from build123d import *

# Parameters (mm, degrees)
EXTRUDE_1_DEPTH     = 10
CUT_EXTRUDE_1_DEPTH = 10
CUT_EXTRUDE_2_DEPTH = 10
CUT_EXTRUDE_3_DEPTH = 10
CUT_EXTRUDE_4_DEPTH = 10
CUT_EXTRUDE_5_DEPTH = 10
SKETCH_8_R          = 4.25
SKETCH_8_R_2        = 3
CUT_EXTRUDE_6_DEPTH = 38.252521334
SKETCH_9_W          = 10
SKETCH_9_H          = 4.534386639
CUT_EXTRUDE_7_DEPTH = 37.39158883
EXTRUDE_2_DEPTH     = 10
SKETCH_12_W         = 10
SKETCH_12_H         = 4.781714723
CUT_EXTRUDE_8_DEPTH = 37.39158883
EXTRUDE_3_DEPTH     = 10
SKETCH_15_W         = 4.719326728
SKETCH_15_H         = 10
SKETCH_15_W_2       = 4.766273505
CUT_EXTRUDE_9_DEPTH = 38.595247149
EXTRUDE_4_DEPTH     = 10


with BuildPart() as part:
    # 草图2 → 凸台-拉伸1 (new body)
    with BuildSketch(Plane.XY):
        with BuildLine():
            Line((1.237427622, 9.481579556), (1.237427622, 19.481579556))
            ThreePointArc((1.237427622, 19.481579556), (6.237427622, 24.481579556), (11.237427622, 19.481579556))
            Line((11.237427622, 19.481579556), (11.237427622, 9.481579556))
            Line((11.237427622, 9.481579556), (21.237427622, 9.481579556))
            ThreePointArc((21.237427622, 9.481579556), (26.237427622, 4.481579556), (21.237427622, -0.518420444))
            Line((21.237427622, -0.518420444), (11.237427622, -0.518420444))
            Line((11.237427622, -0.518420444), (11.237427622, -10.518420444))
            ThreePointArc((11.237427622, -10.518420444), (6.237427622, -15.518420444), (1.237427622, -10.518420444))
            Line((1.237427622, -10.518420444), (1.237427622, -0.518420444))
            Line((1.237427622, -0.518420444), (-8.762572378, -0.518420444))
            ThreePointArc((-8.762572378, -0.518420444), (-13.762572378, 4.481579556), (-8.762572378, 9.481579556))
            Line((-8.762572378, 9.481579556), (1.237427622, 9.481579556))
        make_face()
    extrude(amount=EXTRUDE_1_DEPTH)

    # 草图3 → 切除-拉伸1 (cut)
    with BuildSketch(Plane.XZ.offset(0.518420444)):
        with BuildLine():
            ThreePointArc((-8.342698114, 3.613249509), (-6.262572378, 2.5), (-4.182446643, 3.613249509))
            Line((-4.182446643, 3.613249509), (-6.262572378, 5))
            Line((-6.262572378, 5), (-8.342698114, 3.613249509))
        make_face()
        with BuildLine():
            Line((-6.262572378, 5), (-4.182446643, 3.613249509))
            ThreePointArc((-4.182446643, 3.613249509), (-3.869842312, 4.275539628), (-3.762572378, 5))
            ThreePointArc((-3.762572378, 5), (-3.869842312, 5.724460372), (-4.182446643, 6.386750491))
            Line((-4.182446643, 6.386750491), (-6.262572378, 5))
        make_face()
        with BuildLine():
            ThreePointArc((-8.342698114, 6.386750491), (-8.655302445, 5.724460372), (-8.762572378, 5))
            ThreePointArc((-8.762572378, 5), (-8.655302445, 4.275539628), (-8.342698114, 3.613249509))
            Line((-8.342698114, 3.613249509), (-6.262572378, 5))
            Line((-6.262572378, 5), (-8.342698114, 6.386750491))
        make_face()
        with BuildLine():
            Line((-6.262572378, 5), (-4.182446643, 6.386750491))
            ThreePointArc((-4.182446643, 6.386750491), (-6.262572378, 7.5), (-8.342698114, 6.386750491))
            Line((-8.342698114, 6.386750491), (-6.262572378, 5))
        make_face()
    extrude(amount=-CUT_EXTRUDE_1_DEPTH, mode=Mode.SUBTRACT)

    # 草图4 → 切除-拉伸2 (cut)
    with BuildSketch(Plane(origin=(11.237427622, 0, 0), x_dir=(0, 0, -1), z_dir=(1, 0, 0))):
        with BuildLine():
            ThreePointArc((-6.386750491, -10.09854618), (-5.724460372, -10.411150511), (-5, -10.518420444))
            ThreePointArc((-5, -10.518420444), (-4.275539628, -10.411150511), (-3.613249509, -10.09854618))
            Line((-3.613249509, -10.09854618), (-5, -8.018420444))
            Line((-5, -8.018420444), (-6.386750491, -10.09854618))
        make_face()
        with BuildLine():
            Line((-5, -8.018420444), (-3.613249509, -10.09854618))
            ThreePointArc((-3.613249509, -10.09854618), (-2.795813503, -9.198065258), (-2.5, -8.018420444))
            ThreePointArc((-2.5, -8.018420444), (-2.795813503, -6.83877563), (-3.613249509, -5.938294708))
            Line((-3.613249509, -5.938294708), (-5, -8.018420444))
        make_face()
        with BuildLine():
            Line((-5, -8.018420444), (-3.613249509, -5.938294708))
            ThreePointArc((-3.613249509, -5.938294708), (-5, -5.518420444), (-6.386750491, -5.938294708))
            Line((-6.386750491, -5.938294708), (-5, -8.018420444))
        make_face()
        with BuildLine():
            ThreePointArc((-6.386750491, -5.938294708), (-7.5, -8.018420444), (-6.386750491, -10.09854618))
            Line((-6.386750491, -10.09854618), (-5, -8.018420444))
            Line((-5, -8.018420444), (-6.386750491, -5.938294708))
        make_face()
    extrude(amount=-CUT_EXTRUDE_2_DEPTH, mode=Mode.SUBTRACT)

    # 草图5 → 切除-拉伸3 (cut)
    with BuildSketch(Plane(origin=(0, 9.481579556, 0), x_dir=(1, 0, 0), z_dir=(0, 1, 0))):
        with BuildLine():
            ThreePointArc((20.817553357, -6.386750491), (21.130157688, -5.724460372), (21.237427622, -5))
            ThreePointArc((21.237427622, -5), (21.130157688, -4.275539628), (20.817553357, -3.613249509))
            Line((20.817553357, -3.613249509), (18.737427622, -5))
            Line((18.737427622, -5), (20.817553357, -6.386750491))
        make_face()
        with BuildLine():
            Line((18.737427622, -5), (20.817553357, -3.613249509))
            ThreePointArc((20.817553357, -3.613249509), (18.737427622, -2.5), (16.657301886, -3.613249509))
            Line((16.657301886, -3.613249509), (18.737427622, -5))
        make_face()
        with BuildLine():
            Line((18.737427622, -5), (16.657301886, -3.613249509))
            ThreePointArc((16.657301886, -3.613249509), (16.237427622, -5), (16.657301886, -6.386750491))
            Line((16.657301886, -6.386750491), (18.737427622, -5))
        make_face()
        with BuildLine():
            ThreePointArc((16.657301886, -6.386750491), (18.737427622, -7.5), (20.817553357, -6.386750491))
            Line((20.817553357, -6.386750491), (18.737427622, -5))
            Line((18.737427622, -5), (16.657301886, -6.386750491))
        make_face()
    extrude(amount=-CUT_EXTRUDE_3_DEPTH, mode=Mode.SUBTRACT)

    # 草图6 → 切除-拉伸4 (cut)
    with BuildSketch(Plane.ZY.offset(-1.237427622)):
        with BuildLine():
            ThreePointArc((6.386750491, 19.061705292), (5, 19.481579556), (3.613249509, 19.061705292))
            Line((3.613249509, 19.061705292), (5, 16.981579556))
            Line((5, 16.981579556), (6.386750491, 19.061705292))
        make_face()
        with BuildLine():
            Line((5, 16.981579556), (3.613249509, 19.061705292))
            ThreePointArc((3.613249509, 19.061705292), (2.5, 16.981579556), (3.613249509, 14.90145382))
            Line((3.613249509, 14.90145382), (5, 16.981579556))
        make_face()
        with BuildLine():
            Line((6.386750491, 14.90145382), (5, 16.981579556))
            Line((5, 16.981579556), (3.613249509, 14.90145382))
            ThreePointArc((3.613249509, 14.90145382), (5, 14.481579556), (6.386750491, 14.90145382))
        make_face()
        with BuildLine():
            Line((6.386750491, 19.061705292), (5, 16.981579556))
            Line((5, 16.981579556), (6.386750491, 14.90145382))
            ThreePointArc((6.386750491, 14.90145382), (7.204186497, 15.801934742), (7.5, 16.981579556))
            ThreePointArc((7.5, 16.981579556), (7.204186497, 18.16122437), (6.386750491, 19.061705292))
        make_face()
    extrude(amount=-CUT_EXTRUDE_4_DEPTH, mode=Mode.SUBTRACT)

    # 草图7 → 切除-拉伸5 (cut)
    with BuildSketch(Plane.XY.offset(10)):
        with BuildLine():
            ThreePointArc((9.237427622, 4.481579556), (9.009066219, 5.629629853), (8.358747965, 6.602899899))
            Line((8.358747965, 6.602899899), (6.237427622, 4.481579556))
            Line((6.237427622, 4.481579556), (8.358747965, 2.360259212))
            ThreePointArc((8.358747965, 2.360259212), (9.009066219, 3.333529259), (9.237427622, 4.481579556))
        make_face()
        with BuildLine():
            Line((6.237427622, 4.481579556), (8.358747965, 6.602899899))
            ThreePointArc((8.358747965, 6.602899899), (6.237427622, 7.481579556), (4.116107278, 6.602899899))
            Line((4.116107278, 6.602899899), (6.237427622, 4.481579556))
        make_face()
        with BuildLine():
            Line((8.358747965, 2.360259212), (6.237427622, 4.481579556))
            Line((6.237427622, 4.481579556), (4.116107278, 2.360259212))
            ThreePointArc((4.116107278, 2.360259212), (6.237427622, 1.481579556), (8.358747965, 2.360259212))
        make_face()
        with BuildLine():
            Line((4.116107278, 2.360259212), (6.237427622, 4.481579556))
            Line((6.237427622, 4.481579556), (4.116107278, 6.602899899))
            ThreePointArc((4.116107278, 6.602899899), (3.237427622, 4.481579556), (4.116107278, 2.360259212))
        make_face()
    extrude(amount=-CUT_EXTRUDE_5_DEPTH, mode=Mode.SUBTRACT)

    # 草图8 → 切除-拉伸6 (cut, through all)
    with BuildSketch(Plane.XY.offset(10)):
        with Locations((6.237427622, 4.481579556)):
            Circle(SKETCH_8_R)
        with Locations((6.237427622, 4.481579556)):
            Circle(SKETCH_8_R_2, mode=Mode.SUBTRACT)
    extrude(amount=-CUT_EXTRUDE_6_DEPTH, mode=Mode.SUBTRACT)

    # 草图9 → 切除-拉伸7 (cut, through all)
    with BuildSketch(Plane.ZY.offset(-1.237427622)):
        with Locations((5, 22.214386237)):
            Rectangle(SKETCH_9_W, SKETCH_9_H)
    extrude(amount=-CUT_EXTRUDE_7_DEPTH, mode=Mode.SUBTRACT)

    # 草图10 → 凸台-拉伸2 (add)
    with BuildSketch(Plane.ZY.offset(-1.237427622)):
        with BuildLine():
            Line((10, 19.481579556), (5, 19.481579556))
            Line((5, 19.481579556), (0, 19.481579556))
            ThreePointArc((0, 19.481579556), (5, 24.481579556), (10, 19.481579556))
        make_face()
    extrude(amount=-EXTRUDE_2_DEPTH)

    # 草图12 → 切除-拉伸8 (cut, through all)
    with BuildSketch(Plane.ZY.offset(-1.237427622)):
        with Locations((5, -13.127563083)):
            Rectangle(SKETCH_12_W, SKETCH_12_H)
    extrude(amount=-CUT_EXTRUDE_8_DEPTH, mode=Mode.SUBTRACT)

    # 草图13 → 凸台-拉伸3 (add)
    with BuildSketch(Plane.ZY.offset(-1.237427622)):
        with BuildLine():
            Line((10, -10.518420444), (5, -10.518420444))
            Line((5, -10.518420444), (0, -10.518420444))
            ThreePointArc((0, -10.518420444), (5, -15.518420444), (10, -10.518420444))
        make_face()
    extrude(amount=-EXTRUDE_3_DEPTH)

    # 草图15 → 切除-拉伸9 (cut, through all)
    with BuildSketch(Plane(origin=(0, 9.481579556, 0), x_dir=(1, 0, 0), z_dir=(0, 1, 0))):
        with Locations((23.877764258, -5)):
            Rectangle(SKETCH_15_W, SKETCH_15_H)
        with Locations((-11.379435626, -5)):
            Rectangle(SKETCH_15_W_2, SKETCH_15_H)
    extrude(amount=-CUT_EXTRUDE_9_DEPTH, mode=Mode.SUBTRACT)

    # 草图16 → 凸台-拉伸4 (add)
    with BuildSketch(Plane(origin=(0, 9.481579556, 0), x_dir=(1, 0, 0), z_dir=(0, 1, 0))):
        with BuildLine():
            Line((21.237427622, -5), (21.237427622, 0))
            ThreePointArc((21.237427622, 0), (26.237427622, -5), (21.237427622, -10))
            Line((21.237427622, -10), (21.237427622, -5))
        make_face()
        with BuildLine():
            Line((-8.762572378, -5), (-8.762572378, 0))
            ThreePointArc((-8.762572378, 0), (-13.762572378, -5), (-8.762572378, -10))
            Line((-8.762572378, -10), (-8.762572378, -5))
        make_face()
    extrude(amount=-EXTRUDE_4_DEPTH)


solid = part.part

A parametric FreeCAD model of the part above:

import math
import FreeCAD as App
import Part
import Sketcher

V = App.Vector
Q = App.Units.Quantity


def add_polygon(sketch, points):
    """Adds a closed chain of lines whose ends are joined by coincident constraints."""
    first, n = sketch.GeometryCount, len(points)
    for a, b in zip(points, points[1:] + points[:1]):
        sketch.addGeometry(Part.LineSegment(App.Vector(*a, 0), App.Vector(*b, 0)), False)
    for i in range(n):
        sketch.addConstraint(Sketcher.Constraint("Coincident", first + i, 2, first + (i + 1) % n, 1))

doc = App.newDocument("Part")
body = doc.addObject("PartDesign::Body", "Body")

# Sketch on XY plane
sketch1 = body.newObject("Sketcher::SketchObject", "Sketch")
sketch1.AttachmentSupport = (doc.getObject("XY_Plane"), [""])
sketch1.MapMode = "FlatFace"
sketch1.addGeometry([
    Part.LineSegment(V(1, 19, 0), V(1, 9, 0)),  # 0
    Part.LineSegment(V(1, 9, 0), V(-9, 9, 0)),  # 1
    Part.ArcOfCircle(Part.Circle(V(-9, 4, 0), V(0, 0, 1), 5), math.radians(90), math.radians(270)),  # 2
    Part.LineSegment(V(-9, -1, 0), V(1, -1, 0)),  # 3
    Part.LineSegment(V(1, -1, 0), V(1, -11, 0)),  # 4
    Part.ArcOfCircle(Part.Circle(V(6, -11, 0), V(0, 0, 1), 5), math.radians(180), math.radians(360)),  # 5
    Part.LineSegment(V(11, -11, 0), V(11, -1, 0)),  # 6
    Part.LineSegment(V(11, -1, 0), V(21, -1, 0)),  # 7
    Part.ArcOfCircle(Part.Circle(V(21, 4, 0), V(0, 0, 1), 5), math.radians(-90), math.radians(90)),  # 8
    Part.LineSegment(V(21, 9, 0), V(11, 9, 0)),  # 9
    Part.LineSegment(V(11, 9, 0), V(11, 19, 0)),  # 10
    Part.ArcOfCircle(Part.Circle(V(6, 19, 0), V(0, 0, 1), 5), math.radians(0), math.radians(180)),  # 11
], False)
sketch1.addConstraint([
    Sketcher.Constraint("Coincident", 0, 2, 1, 1),
    Sketcher.Constraint("Tangent", 1, 2, 2, 1),
    Sketcher.Constraint("Tangent", 2, 2, 3, 1),
    Sketcher.Constraint("Coincident", 3, 2, 4, 1),
    Sketcher.Constraint("Tangent", 4, 2, 5, 1),
    Sketcher.Constraint("Tangent", 5, 2, 6, 1),
    Sketcher.Constraint("Coincident", 6, 2, 7, 1),
    Sketcher.Constraint("Tangent", 7, 2, 8, 1),
    Sketcher.Constraint("Tangent", 8, 2, 9, 1),
    Sketcher.Constraint("Coincident", 9, 2, 10, 1),
    Sketcher.Constraint("Tangent", 10, 2, 11, 1),
    Sketcher.Constraint("Tangent", 11, 2, 0, 1),
    Sketcher.Constraint("Vertical", 0),
    Sketcher.Constraint("Horizontal", 1),
    Sketcher.Constraint("Horizontal", 3),
    Sketcher.Constraint("Vertical", 4),
    Sketcher.Constraint("Vertical", 6),
    Sketcher.Constraint("Horizontal", 7),
    Sketcher.Constraint("Horizontal", 9),
    Sketcher.Constraint("Vertical", 10),
    Sketcher.Constraint("Equal", 2, 5),
    Sketcher.Constraint("Equal", 5, 8),
    Sketcher.Constraint("Equal", 8, 11),
    Sketcher.Constraint("Horizontal", 2, 3, 8, 3),
    Sketcher.Constraint("Vertical", 5, 3, 11, 3),
    Sketcher.Constraint("Equal", 3, 7),
    Sketcher.Constraint("Equal", 9, 0),
    Sketcher.Constraint("Equal", 0, 4),
    Sketcher.Constraint("Radius", 2, Q("5 mm")),
    Sketcher.Constraint("DistanceX", 1, 2, 1, 1, Q("10 mm")),
    Sketcher.Constraint("DistanceY", -1, 1, 2, 3, Q("4.48158 mm")),
    Sketcher.Constraint("DistanceX", 2, 3, -1, 1, Q("8.762572 mm")),
])
pad1 = body.newObject("PartDesign::Pad", "Pad")
pad1.Profile = sketch1
pad1.Length = 10

# Sketch on XZ plane
sketch2 = body.newObject("Sketcher::SketchObject", "Sketch001")
sketch2.AttachmentSupport = (doc.getObject("XZ_Plane"), [""])
sketch2.MapMode = "FlatFace"
sketch2.AttachmentOffset = App.Placement(V(0, 0, 0.51842), App.Rotation())
sketch2.addGeometry([
    Part.ArcOfCircle(Part.Circle(V(-6.3, 5, 0), V(0, 0, 1), 2.5), math.radians(0), math.radians(34)),  # 0
    Part.ArcOfCircle(Part.Circle(V(-6.3, 5, 0), V(0, 0, 1), 2.5), math.radians(34), math.radians(146)),  # 1
    Part.ArcOfCircle(Part.Circle(V(-6.3, 5, 0), V(0, 0, 1), 2.5), math.radians(146), math.radians(180)),  # 2
    Part.ArcOfCircle(Part.Circle(V(-6.3, 5, 0), V(0, 0, 1), 2.5), math.radians(180), math.radians(214)),  # 3
    Part.ArcOfCircle(Part.Circle(V(-6.3, 5, 0), V(0, 0, 1), 2.5), math.radians(-146), math.radians(-34)),  # 4
    Part.ArcOfCircle(Part.Circle(V(-6.3, 5, 0), V(0, 0, 1), 2.5), math.radians(-34), math.radians(0)),  # 5
], False)
sketch2.addConstraint([
    Sketcher.Constraint("Tangent", 0, 2, 1, 1),
    Sketcher.Constraint("Tangent", 1, 2, 2, 1),
    Sketcher.Constraint("Tangent", 2, 2, 3, 1),
    Sketcher.Constraint("Tangent", 3, 2, 4, 1),
    Sketcher.Constraint("Tangent", 4, 2, 5, 1),
    Sketcher.Constraint("Tangent", 5, 2, 0, 1),
    Sketcher.Constraint("Coincident", 2, 3, 0, 3),
    Sketcher.Constraint("Equal", 2, 3),
    Sketcher.Constraint("Horizontal", 0, 2, 1, 2),
    Sketcher.Constraint("Horizontal", 5, 3, 2, 2),
    Sketcher.Constraint("Horizontal", 3, 2, 4, 2),
    Sketcher.Constraint("Horizontal", 2, 2, 5, 2),
    Sketcher.Constraint("Vertical", 1, 2, 3, 2),
    Sketcher.Constraint("Radius", 0, Q("2.5 mm")),
    Sketcher.Constraint("DistanceY", -1, 1, 0, 3, Q("5 mm")),
    Sketcher.Constraint("DistanceX", 1, 2, -1, 1, Q("8.342698 mm")),
    Sketcher.Constraint("DistanceY", -1, 1, 0, 2, Q("6.38675 mm")),
])
pocket1 = body.newObject("PartDesign::Pocket", "Pocket")
pocket1.Profile = sketch2
pocket1.Length = 10

# Sketch on YZ plane
sketch3 = body.newObject("Sketcher::SketchObject", "Sketch002")
sketch3.AttachmentSupport = (doc.getObject("YZ_Plane"), [""])
sketch3.MapMode = "FlatFace"
sketch3.AttachmentOffset = App.Placement(V(0, 0, 11.237428), App.Rotation())
sketch3.addGeometry([
    Part.ArcOfCircle(Part.Circle(V(-8, 5, 0), V(0, 0, 1), 2.5), math.radians(146), math.radians(180)),  # 0
    Part.ArcOfCircle(Part.Circle(V(-8, 5, 0), V(0, 0, 1), 2.5), math.radians(180), math.radians(214)),  # 1
    Part.ArcOfCircle(Part.Circle(V(-8, 5, 0), V(0, 0, 1), 2.5), math.radians(-146), math.radians(-90)),  # 2
    Part.ArcOfCircle(Part.Circle(V(-8, 5, 0), V(0, 0, 1), 2.5), math.radians(-90), math.radians(-34)),  # 3
    Part.ArcOfCircle(Part.Circle(V(-8, 5, 0), V(0, 0, 1), 2.5), math.radians(-34), math.radians(34)),  # 4
    Part.ArcOfCircle(Part.Circle(V(-8, 5, 0), V(0, 0, 1), 2.5), math.radians(34), math.radians(146)),  # 5
], False)
sketch3.addConstraint([
    Sketcher.Constraint("Tangent", 0, 2, 1, 1),
    Sketcher.Constraint("Tangent", 1, 2, 2, 1),
    Sketcher.Constraint("Tangent", 2, 2, 3, 1),
    Sketcher.Constraint("Tangent", 3, 2, 4, 1),
    Sketcher.Constraint("Tangent", 4, 2, 5, 1),
    Sketcher.Constraint("Tangent", 5, 2, 0, 1),
    Sketcher.Constraint("Coincident", 2, 3, 0, 3),
    Sketcher.Constraint("Equal", 2, 3),
    Sketcher.Constraint("Horizontal", 5, 3, 0, 2),
    Sketcher.Constraint("Horizontal", 1, 2, 3, 2),
    Sketcher.Constraint("Horizontal", 4, 2, 5, 2),
    Sketcher.Constraint("Vertical", 5, 3, 2, 2),
    Sketcher.Constraint("Vertical", 3, 2, 4, 2),
    Sketcher.Constraint("Radius", 0, Q("2.5 mm")),
    Sketcher.Constraint("DistanceY", -1, 1, 0, 3, Q("5 mm")),
    Sketcher.Constraint("DistanceX", 0, 3, -1, 1, Q("8.01842 mm")),
    Sketcher.Constraint("DistanceY", -1, 1, 1, 2, Q("3.61325 mm")),
])
pocket2 = body.newObject("PartDesign::Pocket", "Pocket001")
pocket2.Profile = sketch3
pocket2.Length = 10

# Sketch on XZ plane
sketch4 = body.newObject("Sketcher::SketchObject", "Sketch003")
sketch4.AttachmentSupport = (doc.getObject("XZ_Plane"), [""])
sketch4.MapMode = "FlatFace"
sketch4.AttachmentOffset = App.Placement(V(0, 0, -9.48158), App.Rotation())
sketch4.addGeometry([
    Part.ArcOfCircle(Part.Circle(V(18.7, 5, 0), V(0, 0, 1), 2.5), math.radians(0), math.radians(34)),  # 0
    Part.ArcOfCircle(Part.Circle(V(18.7, 5, 0), V(0, 0, 1), 2.5), math.radians(-34), math.radians(0)),  # 1
    Part.ArcOfCircle(Part.Circle(V(18.7, 5, 0), V(0, 0, 1), 2.5), math.radians(-146), math.radians(-34)),  # 2
    Part.ArcOfCircle(Part.Circle(V(18.7, 5, 0), V(0, 0, 1), 2.5), math.radians(146), math.radians(214)),  # 3
    Part.ArcOfCircle(Part.Circle(V(18.7, 5, 0), V(0, 0, 1), 2.5), math.radians(34), math.radians(146)),  # 4
], False)
sketch4.addConstraint([
    Sketcher.Constraint("Tangent", 0, 1, 1, 2),
    Sketcher.Constraint("Tangent", 1, 1, 2, 2),
    Sketcher.Constraint("Tangent", 2, 1, 3, 2),
    Sketcher.Constraint("Tangent", 3, 1, 4, 2),
    Sketcher.Constraint("Tangent", 4, 1, 0, 2),
    Sketcher.Constraint("Coincident", 2, 3, 0, 3),
    Sketcher.Constraint("Horizontal", 4, 3, 0, 1),
    Sketcher.Constraint("Horizontal", 1, 1, 2, 1),
    Sketcher.Constraint("Horizontal", 3, 1, 4, 1),
    Sketcher.Constraint("Vertical", 2, 1, 3, 1),
    Sketcher.Constraint("Radius", 0, Q("2.5 mm")),
    Sketcher.Constraint("DistanceY", -1, 1, 0, 3, Q("5 mm")),
    Sketcher.Constraint("DistanceX", -1, 1, 2, 1, Q("16.657302 mm")),
    Sketcher.Constraint("DistanceY", -1, 1, 1, 1, Q("3.61325 mm")),
])
pocket3 = body.newObject("PartDesign::Pocket", "Pocket002")
pocket3.Profile = sketch4
pocket3.Length = 10
pocket3.Reversed = True

# Sketch on YZ plane
sketch5 = body.newObject("Sketcher::SketchObject", "Sketch004")
sketch5.AttachmentSupport = (doc.getObject("YZ_Plane"), [""])
sketch5.MapMode = "FlatFace"
sketch5.AttachmentOffset = App.Placement(V(0, 0, 1.237428), App.Rotation())
sketch5.addGeometry([
    Part.ArcOfCircle(Part.Circle(V(17, 5, 0), V(0, 0, 1), 2.5), math.radians(-34), math.radians(34)),  # 0
    Part.ArcOfCircle(Part.Circle(V(17, 5, 0), V(0, 0, 1), 2.5), math.radians(-146), math.radians(-34)),  # 1
    Part.ArcOfCircle(Part.Circle(V(17, 5, 0), V(0, 0, 1), 2.5), math.radians(146), math.radians(214)),  # 2
    Part.ArcOfCircle(Part.Circle(V(17, 5, 0), V(0, 0, 1), 2.5), math.radians(90), math.radians(146)),  # 3
    Part.ArcOfCircle(Part.Circle(V(17, 5, 0), V(0, 0, 1), 2.5), math.radians(34), math.radians(90)),  # 4
], False)
sketch5.addConstraint([
    Sketcher.Constraint("Tangent", 0, 1, 1, 2),
    Sketcher.Constraint("Tangent", 1, 1, 2, 2),
    Sketcher.Constraint("Tangent", 2, 1, 3, 2),
    Sketcher.Constraint("Tangent", 3, 1, 4, 2),
    Sketcher.Constraint("Tangent", 4, 1, 0, 2),
    Sketcher.Constraint("Coincident", 2, 3, 0, 3),
    Sketcher.Constraint("Horizontal", 0, 1, 1, 1),
    Sketcher.Constraint("Horizontal", 2, 1, 4, 1),
    Sketcher.Constraint("Vertical", 1, 1, 2, 1),
    Sketcher.Constraint("Vertical", 4, 3, 3, 1),
    Sketcher.Constraint("Radius", 0, Q("2.5 mm")),
    Sketcher.Constraint("DistanceY", -1, 1, 0, 3, Q("5 mm")),
    Sketcher.Constraint("DistanceX", -1, 1, 0, 3, Q("16.98158 mm")),
    Sketcher.Constraint("DistanceY", -1, 1, 0, 1, Q("3.61325 mm")),
])
pocket4 = body.newObject("PartDesign::Pocket", "Pocket003")
pocket4.Profile = sketch5
pocket4.Length = 10
pocket4.Reversed = True

# Sketch on XY plane
sketch6 = body.newObject("Sketcher::SketchObject", "Sketch005")
sketch6.AttachmentSupport = (doc.getObject("XY_Plane"), [""])
sketch6.MapMode = "FlatFace"
sketch6.AttachmentOffset = App.Placement(V(0, 0, 10), App.Rotation())
sketch6.addGeometry([
    Part.ArcOfCircle(Part.Circle(V(6.2, 4.5, 0), V(0, 0, 1), 3), math.radians(45), math.radians(135)),  # 0
    Part.ArcOfCircle(Part.Circle(V(6.2, 4.5, 0), V(0, 0, 1), 3), math.radians(135), math.radians(225)),  # 1
    Part.ArcOfCircle(Part.Circle(V(6.2, 4.5, 0), V(0, 0, 1), 3), math.radians(-135), math.radians(-45)),  # 2
    Part.ArcOfCircle(Part.Circle(V(6.2, 4.5, 0), V(0, 0, 1), 3), math.radians(-45), math.radians(0)),  # 3
    Part.ArcOfCircle(Part.Circle(V(6.2, 4.5, 0), V(0, 0, 1), 3), math.radians(0), math.radians(45)),  # 4
], False)
sketch6.addConstraint([
    Sketcher.Constraint("Tangent", 0, 2, 1, 1),
    Sketcher.Constraint("Tangent", 1, 2, 2, 1),
    Sketcher.Constraint("Tangent", 2, 2, 3, 1),
    Sketcher.Constraint("Tangent", 3, 2, 4, 1),
    Sketcher.Constraint("Tangent", 4, 2, 0, 1),
    Sketcher.Constraint("Coincident", 2, 3, 0, 3),
    Sketcher.Constraint("Horizontal", 1, 2, 2, 2),
    Sketcher.Constraint("Horizontal", 4, 3, 3, 2),
    Sketcher.Constraint("Horizontal", 0, 2, 4, 2),
    Sketcher.Constraint("Vertical", 0, 2, 1, 2),
    Sketcher.Constraint("Radius", 0, Q("3 mm")),
    Sketcher.Constraint("DistanceY", -1, 1, 0, 2, Q("6.6029 mm")),
    Sketcher.Constraint("DistanceY", -1, 1, 0, 3, Q("4.48158 mm")),
    Sketcher.Constraint("DistanceX", -1, 1, 0, 3, Q("6.237428 mm")),
])
pocket5 = body.newObject("PartDesign::Pocket", "Pocket004")
pocket5.Profile = sketch6
pocket5.Length = 10

# Sketch on XY plane
sketch7 = body.newObject("Sketcher::SketchObject", "Sketch006")
sketch7.AttachmentSupport = (doc.getObject("XY_Plane"), [""])
sketch7.MapMode = "FlatFace"
sketch7.AttachmentOffset = App.Placement(V(0, 0, 10), App.Rotation())
sketch7.addGeometry([
    Part.Circle(V(6.2, 4.5, 0), V(0, 0, 1), 4.2),
    Part.Circle(V(6.2, 4.5, 0), V(0, 0, 1), 3),
], False)
sketch7.addConstraint([
    Sketcher.Constraint("Coincident", 1, 3, 0, 3),
    Sketcher.Constraint("Diameter", 1, Q("6 mm")),
    Sketcher.Constraint("Diameter", 0, Q("8.5 mm")),
    Sketcher.Constraint("DistanceY", -1, 1, 0, 3, Q("4.48158 mm")),
    Sketcher.Constraint("DistanceX", -1, 1, 0, 3, Q("6.237428 mm")),
])
pocket6 = body.newObject("PartDesign::Pocket", "Pocket005")
pocket6.Profile = sketch7
pocket6.Type = "ThroughAll"

# Sketch on YZ plane
sketch8 = body.newObject("Sketcher::SketchObject", "Sketch007")
sketch8.AttachmentSupport = (doc.getObject("YZ_Plane"), [""])
sketch8.MapMode = "FlatFace"
sketch8.AttachmentOffset = App.Placement(V(0, 0, 1.237428), App.Rotation())
add_polygon(sketch8, [(24.5, 0), (19.9, 0), (19.9, 10), (24.5, 10)])  # lines 0-3
sketch8.addConstraint([
    Sketcher.Constraint("Horizontal", 0),
    Sketcher.Constraint("Vertical", 1),
    Sketcher.Constraint("Horizontal", 2),
    Sketcher.Constraint("Vertical", 3),
    Sketcher.Constraint("PointOnObject", 0, 2, -1),
    Sketcher.Constraint("DistanceY", 1, 1, 1, 2, Q("10 mm")),
    Sketcher.Constraint("DistanceX", 0, 2, 0, 1, Q("4.534387 mm")),
    Sketcher.Constraint("DistanceX", -1, 1, 2, 2, Q("24.48158 mm")),
])
pocket7 = body.newObject("PartDesign::Pocket", "Pocket006")
pocket7.Profile = sketch8
pocket7.Type = "ThroughAll"
pocket7.Reversed = True

# Sketch on YZ plane
sketch9 = body.newObject("Sketcher::SketchObject", "Sketch008")
sketch9.AttachmentSupport = (doc.getObject("YZ_Plane"), [""])
sketch9.MapMode = "FlatFace"
sketch9.AttachmentOffset = App.Placement(V(0, 0, 1.237428), App.Rotation())
sketch9.addGeometry([
    Part.LineSegment(V(19, 0, 0), V(19, 10, 0)),
    Part.ArcOfCircle(Part.Circle(V(19, 5, 0), V(0, 0, 1), 5), math.radians(-90), math.radians(90)),
], False)
sketch9.addConstraint([
    Sketcher.Constraint("Coincident", 0, 1, 1, 1),
    Sketcher.Constraint("Coincident", 1, 2, 0, 2),
    Sketcher.Constraint("Vertical", 0),
    Sketcher.Constraint("PointOnObject", 0, 1, -1),
    Sketcher.Constraint("Vertical", 1, 3, 0, 1),
    Sketcher.Constraint("Radius", 1, Q("5 mm")),
    Sketcher.Constraint("DistanceX", -1, 1, 1, 3, Q("19.48158 mm")),
])
pad2 = body.newObject("PartDesign::Pad", "Pad001")
pad2.Profile = sketch9
pad2.Length = 10

# Sketch on YZ plane
sketch10 = body.newObject("Sketcher::SketchObject", "Sketch009")
sketch10.AttachmentSupport = (doc.getObject("YZ_Plane"), [""])
sketch10.MapMode = "FlatFace"
sketch10.AttachmentOffset = App.Placement(V(0, 0, 1.237428), App.Rotation())
add_polygon(sketch10, [(-10.7, 0), (-15.5, 0), (-15.5, 10), (-10.7, 10)])  # lines 0-3
sketch10.addConstraint([
    Sketcher.Constraint("Horizontal", 0),
    Sketcher.Constraint("Vertical", 1),
    Sketcher.Constraint("Horizontal", 2),
    Sketcher.Constraint("Vertical", 3),
    Sketcher.Constraint("PointOnObject", 0, 2, -1),
    Sketcher.Constraint("DistanceY", 1, 1, 1, 2, Q("10 mm")),
    Sketcher.Constraint("DistanceX", 0, 2, 0, 1, Q("4.781715 mm")),
    Sketcher.Constraint("DistanceX", 0, 2, -1, 1, Q("15.51842 mm")),
])
pocket8 = body.newObject("PartDesign::Pocket", "Pocket007")
pocket8.Profile = sketch10
pocket8.Type = "ThroughAll"
pocket8.Reversed = True

# Sketch on YZ plane
sketch11 = body.newObject("Sketcher::SketchObject", "Sketch010")
sketch11.AttachmentSupport = (doc.getObject("YZ_Plane"), [""])
sketch11.MapMode = "FlatFace"
sketch11.AttachmentOffset = App.Placement(V(0, 0, 1.237428), App.Rotation())
sketch11.addGeometry([
    Part.LineSegment(V(-11, 10, 0), V(-11, 0, 0)),
    Part.ArcOfCircle(Part.Circle(V(-11, 5, 0), V(0, 0, 1), 5), math.radians(90), math.radians(270)),
], False)
sketch11.addConstraint([
    Sketcher.Constraint("Coincident", 0, 1, 1, 1),
    Sketcher.Constraint("Coincident", 1, 2, 0, 2),
    Sketcher.Constraint("Vertical", 0),
    Sketcher.Constraint("PointOnObject", 1, 2, -1),
    Sketcher.Constraint("Vertical", 1, 3, 0, 1),
    Sketcher.Constraint("Radius", 1, Q("5 mm")),
    Sketcher.Constraint("DistanceX", 1, 3, -1, 1, Q("10.51842 mm")),
])
pad3 = body.newObject("PartDesign::Pad", "Pad002")
pad3.Profile = sketch11
pad3.Length = 10

# Sketch on XZ plane
sketch12 = body.newObject("Sketcher::SketchObject", "Sketch011")
sketch12.AttachmentSupport = (doc.getObject("XZ_Plane"), [""])
sketch12.MapMode = "FlatFace"
sketch12.AttachmentOffset = App.Placement(V(0, 0, -9.48158), App.Rotation())
add_polygon(sketch12, [(21.5, 0), (21.5, 10), (26.2, 10), (26.2, 0)])  # lines 0-3
add_polygon(sketch12, [(-13.8, 0), (-13.8, 10), (-9, 10), (-9, 0)])  # lines 4-7
sketch12.addConstraint([
    Sketcher.Constraint("Vertical", 0),
    Sketcher.Constraint("Horizontal", 1),
    Sketcher.Constraint("Vertical", 2),
    Sketcher.Constraint("Horizontal", 3),
    Sketcher.Constraint("Vertical", 4),
    Sketcher.Constraint("Horizontal", 5),
    Sketcher.Constraint("Vertical", 6),
    Sketcher.Constraint("Horizontal", 7),
    Sketcher.Constraint("PointOnObject", 2, 2, -1),
    Sketcher.Constraint("PointOnObject", 6, 2, -1),
    Sketcher.Constraint("Horizontal", 1, 2, 4, 2),
    Sketcher.Constraint("DistanceY", 0, 1, 0, 2, Q("10 mm")),
    Sketcher.Constraint("DistanceX", 4, 2, 1, 2, Q("40 mm")),
    Sketcher.Constraint("DistanceX", -1, 1, 0, 2, Q("21.518101 mm")),
    Sketcher.Constraint("DistanceX", 5, 2, -1, 1, Q("8.996299 mm")),
    Sketcher.Constraint("DistanceX", 1, 1, 1, 2, Q("4.719327 mm")),
])
pocket9 = body.newObject("PartDesign::Pocket", "Pocket008")
pocket9.Profile = sketch12
pocket9.Type = "ThroughAll"
pocket9.Reversed = True

# Sketch on XZ plane
sketch13 = body.newObject("Sketcher::SketchObject", "Sketch012")
sketch13.AttachmentSupport = (doc.getObject("XZ_Plane"), [""])
sketch13.MapMode = "FlatFace"
sketch13.AttachmentOffset = App.Placement(V(0, 0, -9.48158), App.Rotation())
sketch13.addGeometry([
    Part.ArcOfCircle(Part.Circle(V(21, 5, 0), V(0, 0, 1), 5), math.radians(-90), math.radians(90)),
    Part.LineSegment(V(21, 0, 0), V(21, 10, 0)),
    Part.ArcOfCircle(Part.Circle(V(-9, 5, 0), V(0, 0, 1), 5), math.radians(90), math.radians(270)),
    Part.LineSegment(V(-9, 10, 0), V(-9, 0, 0)),
], False)
sketch13.addConstraint([
    Sketcher.Constraint("Coincident", 0, 1, 1, 1),
    Sketcher.Constraint("Coincident", 1, 2, 0, 2),
    Sketcher.Constraint("Coincident", 2, 1, 3, 1),
    Sketcher.Constraint("Coincident", 3, 2, 2, 2),
    Sketcher.Constraint("Vertical", 1),
    Sketcher.Constraint("Vertical", 3),
    Sketcher.Constraint("Equal", 0, 2),
    Sketcher.Constraint("PointOnObject", 0, 1, -1),
    Sketcher.Constraint("PointOnObject", 3, 2, -1),
    Sketcher.Constraint("Radius", 0, Q("5 mm")),
    Sketcher.Constraint("DistanceX", 2, 3, 0, 3, Q("30 mm")),
    Sketcher.Constraint("DistanceX", 2, 3, 0, 1, Q("30 mm")),
    Sketcher.Constraint("DistanceX", 2, 1, 1, 2, Q("30 mm")),
    Sketcher.Constraint("DistanceX", -1, 1, 0, 3, Q("21.237428 mm")),
])
pad4 = body.newObject("PartDesign::Pad", "Pad003")
pad4.Profile = sketch13
pad4.Length = 10

doc.recompute()
